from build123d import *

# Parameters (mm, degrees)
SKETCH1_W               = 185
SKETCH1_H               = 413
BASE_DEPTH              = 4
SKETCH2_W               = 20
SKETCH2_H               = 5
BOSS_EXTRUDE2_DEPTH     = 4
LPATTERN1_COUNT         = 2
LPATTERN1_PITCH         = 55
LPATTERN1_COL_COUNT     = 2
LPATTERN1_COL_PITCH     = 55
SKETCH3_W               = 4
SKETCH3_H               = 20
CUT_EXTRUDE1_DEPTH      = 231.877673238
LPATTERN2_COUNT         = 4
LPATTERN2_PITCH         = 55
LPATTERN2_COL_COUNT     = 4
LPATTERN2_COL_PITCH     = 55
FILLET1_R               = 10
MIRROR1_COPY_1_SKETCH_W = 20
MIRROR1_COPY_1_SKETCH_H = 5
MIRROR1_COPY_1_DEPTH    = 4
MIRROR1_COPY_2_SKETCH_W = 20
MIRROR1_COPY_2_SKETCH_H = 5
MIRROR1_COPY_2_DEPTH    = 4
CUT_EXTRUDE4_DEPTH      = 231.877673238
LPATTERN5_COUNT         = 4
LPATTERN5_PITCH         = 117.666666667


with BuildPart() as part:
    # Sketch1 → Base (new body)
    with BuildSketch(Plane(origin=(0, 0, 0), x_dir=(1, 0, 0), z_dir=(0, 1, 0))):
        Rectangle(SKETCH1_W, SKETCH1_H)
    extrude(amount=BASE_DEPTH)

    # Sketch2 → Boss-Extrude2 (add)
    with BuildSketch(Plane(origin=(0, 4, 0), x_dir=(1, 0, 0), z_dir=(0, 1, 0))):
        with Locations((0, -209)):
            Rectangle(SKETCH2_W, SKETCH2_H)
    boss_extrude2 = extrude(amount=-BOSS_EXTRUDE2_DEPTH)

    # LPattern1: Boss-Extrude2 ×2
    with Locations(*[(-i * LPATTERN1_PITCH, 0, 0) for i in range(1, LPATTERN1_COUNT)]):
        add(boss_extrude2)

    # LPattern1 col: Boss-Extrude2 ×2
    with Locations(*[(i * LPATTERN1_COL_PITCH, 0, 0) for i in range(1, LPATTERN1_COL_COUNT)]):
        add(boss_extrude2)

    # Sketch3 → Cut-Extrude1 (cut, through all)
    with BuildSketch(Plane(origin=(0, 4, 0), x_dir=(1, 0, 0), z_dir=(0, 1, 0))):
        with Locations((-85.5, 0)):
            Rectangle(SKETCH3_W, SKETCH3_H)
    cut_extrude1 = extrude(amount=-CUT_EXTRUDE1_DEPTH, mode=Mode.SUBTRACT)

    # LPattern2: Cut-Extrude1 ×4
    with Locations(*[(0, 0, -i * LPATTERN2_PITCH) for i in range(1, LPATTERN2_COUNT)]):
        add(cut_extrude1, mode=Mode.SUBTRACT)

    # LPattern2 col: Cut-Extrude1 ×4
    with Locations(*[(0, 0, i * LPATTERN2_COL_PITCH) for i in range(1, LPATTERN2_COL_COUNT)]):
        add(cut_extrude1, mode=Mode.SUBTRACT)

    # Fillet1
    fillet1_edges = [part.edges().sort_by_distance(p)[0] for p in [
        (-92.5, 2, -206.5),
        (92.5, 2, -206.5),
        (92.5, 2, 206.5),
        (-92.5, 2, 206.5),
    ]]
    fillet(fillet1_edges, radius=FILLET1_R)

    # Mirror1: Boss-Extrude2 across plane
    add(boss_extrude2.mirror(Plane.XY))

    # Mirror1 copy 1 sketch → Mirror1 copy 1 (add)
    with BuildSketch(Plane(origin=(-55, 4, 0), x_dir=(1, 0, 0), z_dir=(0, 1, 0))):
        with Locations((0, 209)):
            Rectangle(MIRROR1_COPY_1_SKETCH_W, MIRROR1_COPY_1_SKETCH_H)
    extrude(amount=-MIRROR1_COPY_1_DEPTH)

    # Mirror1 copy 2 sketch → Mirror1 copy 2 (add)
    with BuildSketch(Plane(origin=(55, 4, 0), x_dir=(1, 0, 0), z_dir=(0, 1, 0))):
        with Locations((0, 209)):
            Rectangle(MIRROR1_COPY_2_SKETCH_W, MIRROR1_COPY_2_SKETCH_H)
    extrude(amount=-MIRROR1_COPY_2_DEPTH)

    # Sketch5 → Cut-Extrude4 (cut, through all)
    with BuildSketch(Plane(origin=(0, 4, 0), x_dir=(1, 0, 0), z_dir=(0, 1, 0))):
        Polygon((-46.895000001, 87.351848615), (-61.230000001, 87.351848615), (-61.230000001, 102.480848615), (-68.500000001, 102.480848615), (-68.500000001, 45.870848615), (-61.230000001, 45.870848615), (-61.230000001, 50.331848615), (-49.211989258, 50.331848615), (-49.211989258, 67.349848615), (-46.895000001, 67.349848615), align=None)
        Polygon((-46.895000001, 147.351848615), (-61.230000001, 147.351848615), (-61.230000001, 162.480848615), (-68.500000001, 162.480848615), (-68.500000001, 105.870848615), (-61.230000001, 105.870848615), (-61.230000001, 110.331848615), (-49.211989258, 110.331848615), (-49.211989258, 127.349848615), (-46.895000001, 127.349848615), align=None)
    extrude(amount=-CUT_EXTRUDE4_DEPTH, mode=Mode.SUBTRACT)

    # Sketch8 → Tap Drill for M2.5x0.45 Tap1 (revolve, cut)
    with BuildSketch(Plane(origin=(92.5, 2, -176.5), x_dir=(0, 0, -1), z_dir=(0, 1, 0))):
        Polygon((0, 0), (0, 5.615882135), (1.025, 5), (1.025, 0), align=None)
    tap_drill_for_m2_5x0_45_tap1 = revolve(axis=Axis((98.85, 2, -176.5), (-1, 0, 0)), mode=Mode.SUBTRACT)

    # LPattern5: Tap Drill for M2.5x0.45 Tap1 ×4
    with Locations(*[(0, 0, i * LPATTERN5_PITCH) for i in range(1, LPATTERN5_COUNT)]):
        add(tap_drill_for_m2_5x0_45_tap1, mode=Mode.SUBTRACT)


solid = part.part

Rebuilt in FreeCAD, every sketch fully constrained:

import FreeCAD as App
import Part
import Sketcher
Q = App.Units.Quantity


def edges_at(feature, points):
    """Names of the edges that pass closest to the given points."""
    edges = feature.Shape.Edges
    near = lambda p: min(range(len(edges)), key=lambda i: edges[i].distToShape(Part.Vertex(*p))[0])
    return sorted({f"Edge{near(p) + 1}" for p in points})


def add_polygon(sketch, points):
    """Adds a closed chain of lines whose ends are joined by coincident constraints."""
    first, n = sketch.GeometryCount, len(points)
    for a, b in zip(points, points[1:] + points[:1]):
        sketch.addGeometry(Part.LineSegment(App.Vector(*a, 0), App.Vector(*b, 0)), False)
    for i in range(n):
        sketch.addConstraint(Sketcher.Constraint("Coincident", first + i, 2, first + (i + 1) % n, 1))

doc = App.newDocument("Part")
params = doc.addObject("Spreadsheet::Sheet", "Params")
for row, (alias, value) in enumerate([
    ("sketch1_width", "185 mm"),
    ("sketch1_height", "413 mm"),
    ("pad1_length", "4 mm"),
    ("sketch2_width", "20 mm"),
    ("sketch2_height", "5 mm"),
    ("pad2_length", "4 mm"),
    ("linearpattern_pitch", "55 mm"),
    ("linearpattern2_pitch", "55 mm"),
    ("sketch3_width", "4 mm"),
    ("sketch3_height", "20 mm"),
    ("linearpattern3_pitch", "55 mm"),
    ("linearpattern4_pitch", "55 mm"),
    ("fillet_radius", "10 mm"),
    ("sketch4_width", "20 mm"),
    ("sketch4_height", "5 mm"),
    ("pad3_length", "4 mm"),
    ("sketch5_width", "20 mm"),
    ("sketch5_height", "5 mm"),
    ("pad4_length", "4 mm"),
    ("sketch6_width", "7.27 mm"),
    ("sketch6_height", "56.61 mm"),
    ("sketch7_width", "5 mm"),
    ("groove_angle", "360 deg"),
    ("linearpattern5_pitch", "117.666667 mm"),
], start=1):
    params.set(f"A{row}", alias)
    params.set(f"B{row}", "=" + value)
    params.setAlias(f"B{row}", alias)

body = doc.addObject("PartDesign::Body", "Body")

sketch1 = doc.addObject("Sketcher::SketchObject", "Sketch")
body.addObject(sketch1)
sketch1.AttachmentSupport = (doc.XZ_Plane, [""])
sketch1.MapMode = "FlatFace"
add_polygon(sketch1, [(-92, -206), (-92, 206), (92, 206), (92, -206)])
sketch1.addConstraint([
    Sketcher.Constraint("Vertical", 0),
    Sketcher.Constraint("Horizontal", 1),
    Sketcher.Constraint("Vertical", 2),
    Sketcher.Constraint("Horizontal", 3),
    Sketcher.Constraint("Symmetric", 0, 2, 2, 2, -1, 1),
    Sketcher.Constraint("DistanceX", 1, 1, 1, 2, Q("185 mm")),
    Sketcher.Constraint("DistanceY", 0, 1, 0, 2, Q("413 mm")),
])
sketch1.setExpression("Constraints[9]", "Params.sketch1_width")
sketch1.setExpression("Constraints[10]", "Params.sketch1_height")
pad1 = doc.addObject("PartDesign::Pad", "Pad")
body.addObject(pad1)
pad1.Profile = sketch1
pad1.setExpression("Length", "Params.pad1_length")
pad1.Reversed = True

sketch2 = doc.addObject("Sketcher::SketchObject", "Sketch001")
body.addObject(sketch2)
sketch2.AttachmentSupport = (doc.XZ_Plane, [""])
sketch2.MapMode = "FlatFace"
sketch2.AttachmentOffset = App.Placement(App.Vector(0, 0, -4), App.Rotation())
add_polygon(sketch2, [(-10, 206), (-10, 212), (10, 212), (10, 206)])
sketch2.addConstraint([
    Sketcher.Constraint("Vertical", 0),
    Sketcher.Constraint("Horizontal", 1),
    Sketcher.Constraint("Vertical", 2),
    Sketcher.Constraint("Horizontal", 3),
    Sketcher.Constraint("DistanceX", 1, 1, 1, 2, Q("20 mm")),
    Sketcher.Constraint("DistanceY", 0, 1, 0, 2, Q("5 mm")),
    Sketcher.Constraint("DistanceX", 0, 2, -1, 1, Q("10 mm")),
    Sketcher.Constraint("DistanceY", -1, 1, 0, 2, Q("211.5 mm")),
])
sketch2.setExpression("Constraints[8]", "Params.sketch2_width")
sketch2.setExpression("Constraints[9]", "Params.sketch2_height")
pad2 = doc.addObject("PartDesign::Pad", "Pad001")
body.addObject(pad2)
pad2.Profile = sketch2
pad2.setExpression("Length", "Params.pad2_length")
doc.recompute()

linearpattern = doc.addObject("PartDesign::LinearPattern", "LinearPattern")
body.addObject(linearpattern)
linearpattern.Originals = [pad2]
linearpattern.Direction = (doc.X_Axis, [""])
linearpattern.Mode = "offset"
linearpattern.setExpression("Offset", "Params.linearpattern_pitch")
linearpattern.Occurrences = 2
linearpattern.Reversed = True
body.Tip = linearpattern
doc.recompute()

linearpattern2 = doc.addObject("PartDesign::LinearPattern", "LinearPattern001")
body.addObject(linearpattern2)
linearpattern2.Originals = [pad2]
linearpattern2.Direction = (doc.X_Axis, [""])
linearpattern2.Mode = "offset"
linearpattern2.setExpression("Offset", "Params.linearpattern2_pitch")
linearpattern2.Occurrences = 2
body.Tip = linearpattern2

sketch3 = doc.addObject("Sketcher::SketchObject", "Sketch002")
body.addObject(sketch3)
sketch3.AttachmentSupport = (doc.XZ_Plane, [""])
sketch3.MapMode = "FlatFace"
sketch3.AttachmentOffset = App.Placement(App.Vector(0, 0, -4), App.Rotation())
add_polygon(sketch3, [(-87.5, -10), (-87.5, 10), (-83.5, 10), (-83.5, -10)])
sketch3.addConstraint([
    Sketcher.Constraint("Vertical", 0),
    Sketcher.Constraint("Horizontal", 1),
    Sketcher.Constraint("Vertical", 2),
    Sketcher.Constraint("Horizontal", 3),
    Sketcher.Constraint("DistanceX", 1, 1, 1, 2, Q("4 mm")),
    Sketcher.Constraint("DistanceY", 0, 1, 0, 2, Q("20 mm")),
    Sketcher.Constraint("DistanceY", -1, 1, 0, 2, Q("10 mm")),
    Sketcher.Constraint("DistanceX", 0, 2, -1, 1, Q("87.5 mm")),
])
sketch3.setExpression("Constraints[8]", "Params.sketch3_width")
sketch3.setExpression("Constraints[9]", "Params.sketch3_height")
pocket1 = doc.addObject("PartDesign::Pocket", "Pocket")
body.addObject(pocket1)
pocket1.Profile = sketch3
pocket1.Type = "ThroughAll"
pocket1.Reversed = True
doc.recompute()

linearpattern3 = doc.addObject("PartDesign::LinearPattern", "LinearPattern002")
body.addObject(linearpattern3)
linearpattern3.Originals = [pocket1]
linearpattern3.Direction = (doc.Z_Axis, [""])
linearpattern3.Mode = "offset"
linearpattern3.setExpression("Offset", "Params.linearpattern3_pitch")
linearpattern3.Occurrences = 4
linearpattern3.Reversed = True
body.Tip = linearpattern3
doc.recompute()

linearpattern4 = doc.addObject("PartDesign::LinearPattern", "LinearPattern003")
body.addObject(linearpattern4)
linearpattern4.Originals = [pocket1]
linearpattern4.Direction = (doc.Z_Axis, [""])
linearpattern4.Mode = "offset"
linearpattern4.setExpression("Offset", "Params.linearpattern4_pitch")
linearpattern4.Occurrences = 4
body.Tip = linearpattern4
doc.recompute()

fillet = doc.addObject("PartDesign::Fillet", "Fillet")
body.addObject(fillet)
fillet.Base = (linearpattern4, edges_at(linearpattern4, [
    (-92.5, 2, -206.5),
    (92.5, 2, -206.5),
    (92.5, 2, 206.5),
    (-92.5, 2, 206.5),
]))
fillet.setExpression("Radius", "Params.fillet_radius")
doc.recompute()

mirrored = doc.addObject("PartDesign::Mirrored", "Mirrored")
body.addObject(mirrored)
mirrored.Originals = [pad2]
mirrored.MirrorPlane = (doc.XY_Plane, [""])
body.Tip = mirrored

sketch4 = doc.addObject("Sketcher::SketchObject", "Sketch003")
body.addObject(sketch4)
sketch4.AttachmentSupport = (doc.XZ_Plane, [""])
sketch4.MapMode = "FlatFace"
sketch4.AttachmentOffset = App.Placement(App.Vector(0, 0, -4), App.Rotation())
add_polygon(sketch4, [(-65, -212), (-65, -206), (-45, -206), (-45, -212)])
sketch4.addConstraint([
    Sketcher.Constraint("Vertical", 0),
    Sketcher.Constraint("Horizontal", 1),
    Sketcher.Constraint("Vertical", 2),
    Sketcher.Constraint("Horizontal", 3),
    Sketcher.Constraint("DistanceX", 1, 1, 1, 2, Q("20 mm")),
    Sketcher.Constraint("DistanceY", 0, 1, 0, 2, Q("5 mm")),
    Sketcher.Constraint("DistanceX", 0, 2, -1, 1, Q("65 mm")),
    Sketcher.Constraint("DistanceY", 0, 2, -1, 1, Q("206.5 mm")),
])
sketch4.setExpression("Constraints[8]", "Params.sketch4_width")
sketch4.setExpression("Constraints[9]", "Params.sketch4_height")
pad3 = doc.addObject("PartDesign::Pad", "Pad002")
body.addObject(pad3)
pad3.Profile = sketch4
pad3.setExpression("Length", "Params.pad3_length")

sketch5 = doc.addObject("Sketcher::SketchObject", "Sketch004")
body.addObject(sketch5)
sketch5.AttachmentSupport = (doc.XZ_Plane, [""])
sketch5.MapMode = "FlatFace"
sketch5.AttachmentOffset = App.Placement(App.Vector(0, 0, -4), App.Rotation())
add_polygon(sketch5, [(45, -212), (45, -206), (65, -206), (65, -212)])
sketch5.addConstraint([
    Sketcher.Constraint("Vertical", 0),
    Sketcher.Constraint("Horizontal", 1),
    Sketcher.Constraint("Vertical", 2),
    Sketcher.Constraint("Horizontal", 3),
    Sketcher.Constraint("DistanceX", 1, 1, 1, 2, Q("20 mm")),
    Sketcher.Constraint("DistanceY", 0, 1, 0, 2, Q("5 mm")),
    Sketcher.Constraint("DistanceX", -1, 1, 0, 2, Q("45 mm")),
    Sketcher.Constraint("DistanceY", 0, 2, -1, 1, Q("206.5 mm")),
])
sketch5.setExpression("Constraints[8]", "Params.sketch5_width")
sketch5.setExpression("Constraints[9]", "Params.sketch5_height")
pad4 = doc.addObject("PartDesign::Pad", "Pad003")
body.addObject(pad4)
pad4.Profile = sketch5
pad4.setExpression("Length", "Params.pad4_length")

sketch6 = doc.addObject("Sketcher::SketchObject", "Sketch005")
body.addObject(sketch6)
sketch6.AttachmentSupport = (doc.XZ_Plane, [""])
sketch6.MapMode = "FlatFace"
sketch6.AttachmentOffset = App.Placement(App.Vector(0, 0, -4), App.Rotation())
add_polygon(sketch6, [(-46.9, -87.4), (-61.2, -87.4), (-61.2, -102.5), (-68.5, -102.5), (-68.5, -45.9), (-61.2, -45.9), (-61.2, -50.3), (-49.2, -50.3), (-49.2, -67.3), (-46.9, -67.3)])
add_polygon(sketch6, [(-46.9, -147.4), (-61.2, -147.4), (-61.2, -162.5), (-68.5, -162.5), (-68.5, -105.9), (-61.2, -105.9), (-61.2, -110.3), (-49.2, -110.3), (-49.2, -127.3), (-46.9, -127.3)])
sketch6.addConstraint([
    Sketcher.Constraint("Horizontal", 0),
    Sketcher.Constraint("Vertical", 1),
    Sketcher.Constraint("Horizontal", 2),
    Sketcher.Constraint("Vertical", 3),
    Sketcher.Constraint("Horizontal", 4),
    Sketcher.Constraint("Vertical", 5),
    Sketcher.Constraint("Horizontal", 6),
    Sketcher.Constraint("Vertical", 7),
    Sketcher.Constraint("Horizontal", 8),
    Sketcher.Constraint("Vertical", 9),
    Sketcher.Constraint("Horizontal", 10),
    Sketcher.Constraint("Vertical", 11),
    Sketcher.Constraint("Horizontal", 12),
    Sketcher.Constraint("Vertical", 13),
    Sketcher.Constraint("Horizontal", 14),
    Sketcher.Constraint("Vertical", 15),
    Sketcher.Constraint("Horizontal", 16),
    Sketcher.Constraint("Vertical", 17),
    Sketcher.Constraint("Horizontal", 18),
    Sketcher.Constraint("Vertical", 19),
    Sketcher.Constraint("Vertical", 1, 2, 4, 2),
    Sketcher.Constraint("Vertical", 5, 2, 10, 2),
    Sketcher.Constraint("Vertical", 3, 2, 12, 2),
    Sketcher.Constraint("Vertical", 11, 2, 14, 2),
    Sketcher.Constraint("Vertical", 7, 2, 16, 2),
    Sketcher.Constraint("Vertical", 9, 2, 18, 2),
    Sketcher.Constraint("Equal", 1, 11),
    Sketcher.Constraint("Equal", 3, 13),
    Sketcher.Constraint("Equal", 5, 15),
    Sketcher.Constraint("Equal", 7, 17),
    Sketcher.Constraint("DistanceY", 10, 2, 0, 2, Q("60 mm")),
    Sketcher.Constraint("DistanceX", 2, 2, 2, 1, Q("7.27 mm")),
    Sketcher.Constraint("DistanceY", 3, 1, 3, 2, Q("56.61 mm")),
    Sketcher.Constraint("DistanceX", 2, 2, -1, 1, Q("68.5 mm")),
    Sketcher.Constraint("DistanceX", 0, 2, 0, 1, Q("14.335 mm")),
    Sketcher.Constraint("DistanceY", 1, 2, 1, 1, Q("15.129 mm")),
    Sketcher.Constraint("DistanceY", 5, 2, 5, 1, Q("4.461 mm")),
    Sketcher.Constraint("DistanceY", 7, 2, 7, 1, Q("17.018 mm")),
    Sketcher.Constraint("DistanceX", 6, 1, 6, 2, Q("12.018011 mm")),
    Sketcher.Constraint("DistanceY", 0, 2, -1, 1, Q("87.351849 mm")),
])
sketch6.setExpression("Constraints[51]", "Params.sketch6_width")
sketch6.setExpression("Constraints[52]", "Params.sketch6_height")
pocket2 = doc.addObject("PartDesign::Pocket", "Pocket001")
body.addObject(pocket2)
pocket2.Profile = sketch6
pocket2.Type = "ThroughAll"
pocket2.Reversed = True

sketch7 = doc.addObject("Sketcher::SketchObject", "Sketch006")
body.addObject(sketch7)
sketch7.AttachmentSupport = (doc.XZ_Plane, [""])
sketch7.MapMode = "FlatFace"
sketch7.AttachmentOffset = App.Placement(App.Vector(0, 0, -2), App.Rotation())
add_polygon(sketch7, [(86.9, -176.5), (92.5, -176.5), (92.5, -177.5), (87.5, -177.5)])
sketch7.addGeometry(Part.LineSegment(App.Vector(92.5, -176.5, 0), App.Vector(86.9, -176.5, 0)), True)
sketch7.addConstraint([
    Sketcher.Constraint("Horizontal", 0),
    Sketcher.Constraint("Vertical", 1),
    Sketcher.Constraint("Horizontal", 2),
    Sketcher.Constraint("Horizontal", 4),
    Sketcher.Constraint("Coincident", 4, 1, 0, 2),
    Sketcher.Constraint("Equal", 0, 4),
    Sketcher.Constraint("DistanceX", 2, 2, 2, 1, Q("5 mm")),
    Sketcher.Constraint("Angle", 3, Q("121 deg")),
    Sketcher.Constraint("DistanceX", -1, 1, 0, 2, Q("92.5 mm")),
    Sketcher.Constraint("DistanceY", 0, 2, -1, 1, Q("176.5 mm")),
    Sketcher.Constraint("DistanceY", 1, 2, 1, 1, Q("1.025 mm")),
])
sketch7.setExpression("Constraints[10]", "Params.sketch7_width")
groove = doc.addObject("PartDesign::Groove", "Groove")
body.addObject(groove)
groove.Profile = sketch7
groove.ReferenceAxis = (sketch7, ["Axis0"])
groove.setExpression("Angle", "Params.groove_angle")
doc.recompute()

linearpattern5 = doc.addObject("PartDesign::LinearPattern", "LinearPattern004")
body.addObject(linearpattern5)
linearpattern5.Originals = [groove]
linearpattern5.Direction = (doc.Z_Axis, [""])
linearpattern5.Mode = "offset"
linearpattern5.setExpression("Offset", "Params.linearpattern5_pitch")
linearpattern5.Occurrences = 4
body.Tip = linearpattern5

doc.recompute()
